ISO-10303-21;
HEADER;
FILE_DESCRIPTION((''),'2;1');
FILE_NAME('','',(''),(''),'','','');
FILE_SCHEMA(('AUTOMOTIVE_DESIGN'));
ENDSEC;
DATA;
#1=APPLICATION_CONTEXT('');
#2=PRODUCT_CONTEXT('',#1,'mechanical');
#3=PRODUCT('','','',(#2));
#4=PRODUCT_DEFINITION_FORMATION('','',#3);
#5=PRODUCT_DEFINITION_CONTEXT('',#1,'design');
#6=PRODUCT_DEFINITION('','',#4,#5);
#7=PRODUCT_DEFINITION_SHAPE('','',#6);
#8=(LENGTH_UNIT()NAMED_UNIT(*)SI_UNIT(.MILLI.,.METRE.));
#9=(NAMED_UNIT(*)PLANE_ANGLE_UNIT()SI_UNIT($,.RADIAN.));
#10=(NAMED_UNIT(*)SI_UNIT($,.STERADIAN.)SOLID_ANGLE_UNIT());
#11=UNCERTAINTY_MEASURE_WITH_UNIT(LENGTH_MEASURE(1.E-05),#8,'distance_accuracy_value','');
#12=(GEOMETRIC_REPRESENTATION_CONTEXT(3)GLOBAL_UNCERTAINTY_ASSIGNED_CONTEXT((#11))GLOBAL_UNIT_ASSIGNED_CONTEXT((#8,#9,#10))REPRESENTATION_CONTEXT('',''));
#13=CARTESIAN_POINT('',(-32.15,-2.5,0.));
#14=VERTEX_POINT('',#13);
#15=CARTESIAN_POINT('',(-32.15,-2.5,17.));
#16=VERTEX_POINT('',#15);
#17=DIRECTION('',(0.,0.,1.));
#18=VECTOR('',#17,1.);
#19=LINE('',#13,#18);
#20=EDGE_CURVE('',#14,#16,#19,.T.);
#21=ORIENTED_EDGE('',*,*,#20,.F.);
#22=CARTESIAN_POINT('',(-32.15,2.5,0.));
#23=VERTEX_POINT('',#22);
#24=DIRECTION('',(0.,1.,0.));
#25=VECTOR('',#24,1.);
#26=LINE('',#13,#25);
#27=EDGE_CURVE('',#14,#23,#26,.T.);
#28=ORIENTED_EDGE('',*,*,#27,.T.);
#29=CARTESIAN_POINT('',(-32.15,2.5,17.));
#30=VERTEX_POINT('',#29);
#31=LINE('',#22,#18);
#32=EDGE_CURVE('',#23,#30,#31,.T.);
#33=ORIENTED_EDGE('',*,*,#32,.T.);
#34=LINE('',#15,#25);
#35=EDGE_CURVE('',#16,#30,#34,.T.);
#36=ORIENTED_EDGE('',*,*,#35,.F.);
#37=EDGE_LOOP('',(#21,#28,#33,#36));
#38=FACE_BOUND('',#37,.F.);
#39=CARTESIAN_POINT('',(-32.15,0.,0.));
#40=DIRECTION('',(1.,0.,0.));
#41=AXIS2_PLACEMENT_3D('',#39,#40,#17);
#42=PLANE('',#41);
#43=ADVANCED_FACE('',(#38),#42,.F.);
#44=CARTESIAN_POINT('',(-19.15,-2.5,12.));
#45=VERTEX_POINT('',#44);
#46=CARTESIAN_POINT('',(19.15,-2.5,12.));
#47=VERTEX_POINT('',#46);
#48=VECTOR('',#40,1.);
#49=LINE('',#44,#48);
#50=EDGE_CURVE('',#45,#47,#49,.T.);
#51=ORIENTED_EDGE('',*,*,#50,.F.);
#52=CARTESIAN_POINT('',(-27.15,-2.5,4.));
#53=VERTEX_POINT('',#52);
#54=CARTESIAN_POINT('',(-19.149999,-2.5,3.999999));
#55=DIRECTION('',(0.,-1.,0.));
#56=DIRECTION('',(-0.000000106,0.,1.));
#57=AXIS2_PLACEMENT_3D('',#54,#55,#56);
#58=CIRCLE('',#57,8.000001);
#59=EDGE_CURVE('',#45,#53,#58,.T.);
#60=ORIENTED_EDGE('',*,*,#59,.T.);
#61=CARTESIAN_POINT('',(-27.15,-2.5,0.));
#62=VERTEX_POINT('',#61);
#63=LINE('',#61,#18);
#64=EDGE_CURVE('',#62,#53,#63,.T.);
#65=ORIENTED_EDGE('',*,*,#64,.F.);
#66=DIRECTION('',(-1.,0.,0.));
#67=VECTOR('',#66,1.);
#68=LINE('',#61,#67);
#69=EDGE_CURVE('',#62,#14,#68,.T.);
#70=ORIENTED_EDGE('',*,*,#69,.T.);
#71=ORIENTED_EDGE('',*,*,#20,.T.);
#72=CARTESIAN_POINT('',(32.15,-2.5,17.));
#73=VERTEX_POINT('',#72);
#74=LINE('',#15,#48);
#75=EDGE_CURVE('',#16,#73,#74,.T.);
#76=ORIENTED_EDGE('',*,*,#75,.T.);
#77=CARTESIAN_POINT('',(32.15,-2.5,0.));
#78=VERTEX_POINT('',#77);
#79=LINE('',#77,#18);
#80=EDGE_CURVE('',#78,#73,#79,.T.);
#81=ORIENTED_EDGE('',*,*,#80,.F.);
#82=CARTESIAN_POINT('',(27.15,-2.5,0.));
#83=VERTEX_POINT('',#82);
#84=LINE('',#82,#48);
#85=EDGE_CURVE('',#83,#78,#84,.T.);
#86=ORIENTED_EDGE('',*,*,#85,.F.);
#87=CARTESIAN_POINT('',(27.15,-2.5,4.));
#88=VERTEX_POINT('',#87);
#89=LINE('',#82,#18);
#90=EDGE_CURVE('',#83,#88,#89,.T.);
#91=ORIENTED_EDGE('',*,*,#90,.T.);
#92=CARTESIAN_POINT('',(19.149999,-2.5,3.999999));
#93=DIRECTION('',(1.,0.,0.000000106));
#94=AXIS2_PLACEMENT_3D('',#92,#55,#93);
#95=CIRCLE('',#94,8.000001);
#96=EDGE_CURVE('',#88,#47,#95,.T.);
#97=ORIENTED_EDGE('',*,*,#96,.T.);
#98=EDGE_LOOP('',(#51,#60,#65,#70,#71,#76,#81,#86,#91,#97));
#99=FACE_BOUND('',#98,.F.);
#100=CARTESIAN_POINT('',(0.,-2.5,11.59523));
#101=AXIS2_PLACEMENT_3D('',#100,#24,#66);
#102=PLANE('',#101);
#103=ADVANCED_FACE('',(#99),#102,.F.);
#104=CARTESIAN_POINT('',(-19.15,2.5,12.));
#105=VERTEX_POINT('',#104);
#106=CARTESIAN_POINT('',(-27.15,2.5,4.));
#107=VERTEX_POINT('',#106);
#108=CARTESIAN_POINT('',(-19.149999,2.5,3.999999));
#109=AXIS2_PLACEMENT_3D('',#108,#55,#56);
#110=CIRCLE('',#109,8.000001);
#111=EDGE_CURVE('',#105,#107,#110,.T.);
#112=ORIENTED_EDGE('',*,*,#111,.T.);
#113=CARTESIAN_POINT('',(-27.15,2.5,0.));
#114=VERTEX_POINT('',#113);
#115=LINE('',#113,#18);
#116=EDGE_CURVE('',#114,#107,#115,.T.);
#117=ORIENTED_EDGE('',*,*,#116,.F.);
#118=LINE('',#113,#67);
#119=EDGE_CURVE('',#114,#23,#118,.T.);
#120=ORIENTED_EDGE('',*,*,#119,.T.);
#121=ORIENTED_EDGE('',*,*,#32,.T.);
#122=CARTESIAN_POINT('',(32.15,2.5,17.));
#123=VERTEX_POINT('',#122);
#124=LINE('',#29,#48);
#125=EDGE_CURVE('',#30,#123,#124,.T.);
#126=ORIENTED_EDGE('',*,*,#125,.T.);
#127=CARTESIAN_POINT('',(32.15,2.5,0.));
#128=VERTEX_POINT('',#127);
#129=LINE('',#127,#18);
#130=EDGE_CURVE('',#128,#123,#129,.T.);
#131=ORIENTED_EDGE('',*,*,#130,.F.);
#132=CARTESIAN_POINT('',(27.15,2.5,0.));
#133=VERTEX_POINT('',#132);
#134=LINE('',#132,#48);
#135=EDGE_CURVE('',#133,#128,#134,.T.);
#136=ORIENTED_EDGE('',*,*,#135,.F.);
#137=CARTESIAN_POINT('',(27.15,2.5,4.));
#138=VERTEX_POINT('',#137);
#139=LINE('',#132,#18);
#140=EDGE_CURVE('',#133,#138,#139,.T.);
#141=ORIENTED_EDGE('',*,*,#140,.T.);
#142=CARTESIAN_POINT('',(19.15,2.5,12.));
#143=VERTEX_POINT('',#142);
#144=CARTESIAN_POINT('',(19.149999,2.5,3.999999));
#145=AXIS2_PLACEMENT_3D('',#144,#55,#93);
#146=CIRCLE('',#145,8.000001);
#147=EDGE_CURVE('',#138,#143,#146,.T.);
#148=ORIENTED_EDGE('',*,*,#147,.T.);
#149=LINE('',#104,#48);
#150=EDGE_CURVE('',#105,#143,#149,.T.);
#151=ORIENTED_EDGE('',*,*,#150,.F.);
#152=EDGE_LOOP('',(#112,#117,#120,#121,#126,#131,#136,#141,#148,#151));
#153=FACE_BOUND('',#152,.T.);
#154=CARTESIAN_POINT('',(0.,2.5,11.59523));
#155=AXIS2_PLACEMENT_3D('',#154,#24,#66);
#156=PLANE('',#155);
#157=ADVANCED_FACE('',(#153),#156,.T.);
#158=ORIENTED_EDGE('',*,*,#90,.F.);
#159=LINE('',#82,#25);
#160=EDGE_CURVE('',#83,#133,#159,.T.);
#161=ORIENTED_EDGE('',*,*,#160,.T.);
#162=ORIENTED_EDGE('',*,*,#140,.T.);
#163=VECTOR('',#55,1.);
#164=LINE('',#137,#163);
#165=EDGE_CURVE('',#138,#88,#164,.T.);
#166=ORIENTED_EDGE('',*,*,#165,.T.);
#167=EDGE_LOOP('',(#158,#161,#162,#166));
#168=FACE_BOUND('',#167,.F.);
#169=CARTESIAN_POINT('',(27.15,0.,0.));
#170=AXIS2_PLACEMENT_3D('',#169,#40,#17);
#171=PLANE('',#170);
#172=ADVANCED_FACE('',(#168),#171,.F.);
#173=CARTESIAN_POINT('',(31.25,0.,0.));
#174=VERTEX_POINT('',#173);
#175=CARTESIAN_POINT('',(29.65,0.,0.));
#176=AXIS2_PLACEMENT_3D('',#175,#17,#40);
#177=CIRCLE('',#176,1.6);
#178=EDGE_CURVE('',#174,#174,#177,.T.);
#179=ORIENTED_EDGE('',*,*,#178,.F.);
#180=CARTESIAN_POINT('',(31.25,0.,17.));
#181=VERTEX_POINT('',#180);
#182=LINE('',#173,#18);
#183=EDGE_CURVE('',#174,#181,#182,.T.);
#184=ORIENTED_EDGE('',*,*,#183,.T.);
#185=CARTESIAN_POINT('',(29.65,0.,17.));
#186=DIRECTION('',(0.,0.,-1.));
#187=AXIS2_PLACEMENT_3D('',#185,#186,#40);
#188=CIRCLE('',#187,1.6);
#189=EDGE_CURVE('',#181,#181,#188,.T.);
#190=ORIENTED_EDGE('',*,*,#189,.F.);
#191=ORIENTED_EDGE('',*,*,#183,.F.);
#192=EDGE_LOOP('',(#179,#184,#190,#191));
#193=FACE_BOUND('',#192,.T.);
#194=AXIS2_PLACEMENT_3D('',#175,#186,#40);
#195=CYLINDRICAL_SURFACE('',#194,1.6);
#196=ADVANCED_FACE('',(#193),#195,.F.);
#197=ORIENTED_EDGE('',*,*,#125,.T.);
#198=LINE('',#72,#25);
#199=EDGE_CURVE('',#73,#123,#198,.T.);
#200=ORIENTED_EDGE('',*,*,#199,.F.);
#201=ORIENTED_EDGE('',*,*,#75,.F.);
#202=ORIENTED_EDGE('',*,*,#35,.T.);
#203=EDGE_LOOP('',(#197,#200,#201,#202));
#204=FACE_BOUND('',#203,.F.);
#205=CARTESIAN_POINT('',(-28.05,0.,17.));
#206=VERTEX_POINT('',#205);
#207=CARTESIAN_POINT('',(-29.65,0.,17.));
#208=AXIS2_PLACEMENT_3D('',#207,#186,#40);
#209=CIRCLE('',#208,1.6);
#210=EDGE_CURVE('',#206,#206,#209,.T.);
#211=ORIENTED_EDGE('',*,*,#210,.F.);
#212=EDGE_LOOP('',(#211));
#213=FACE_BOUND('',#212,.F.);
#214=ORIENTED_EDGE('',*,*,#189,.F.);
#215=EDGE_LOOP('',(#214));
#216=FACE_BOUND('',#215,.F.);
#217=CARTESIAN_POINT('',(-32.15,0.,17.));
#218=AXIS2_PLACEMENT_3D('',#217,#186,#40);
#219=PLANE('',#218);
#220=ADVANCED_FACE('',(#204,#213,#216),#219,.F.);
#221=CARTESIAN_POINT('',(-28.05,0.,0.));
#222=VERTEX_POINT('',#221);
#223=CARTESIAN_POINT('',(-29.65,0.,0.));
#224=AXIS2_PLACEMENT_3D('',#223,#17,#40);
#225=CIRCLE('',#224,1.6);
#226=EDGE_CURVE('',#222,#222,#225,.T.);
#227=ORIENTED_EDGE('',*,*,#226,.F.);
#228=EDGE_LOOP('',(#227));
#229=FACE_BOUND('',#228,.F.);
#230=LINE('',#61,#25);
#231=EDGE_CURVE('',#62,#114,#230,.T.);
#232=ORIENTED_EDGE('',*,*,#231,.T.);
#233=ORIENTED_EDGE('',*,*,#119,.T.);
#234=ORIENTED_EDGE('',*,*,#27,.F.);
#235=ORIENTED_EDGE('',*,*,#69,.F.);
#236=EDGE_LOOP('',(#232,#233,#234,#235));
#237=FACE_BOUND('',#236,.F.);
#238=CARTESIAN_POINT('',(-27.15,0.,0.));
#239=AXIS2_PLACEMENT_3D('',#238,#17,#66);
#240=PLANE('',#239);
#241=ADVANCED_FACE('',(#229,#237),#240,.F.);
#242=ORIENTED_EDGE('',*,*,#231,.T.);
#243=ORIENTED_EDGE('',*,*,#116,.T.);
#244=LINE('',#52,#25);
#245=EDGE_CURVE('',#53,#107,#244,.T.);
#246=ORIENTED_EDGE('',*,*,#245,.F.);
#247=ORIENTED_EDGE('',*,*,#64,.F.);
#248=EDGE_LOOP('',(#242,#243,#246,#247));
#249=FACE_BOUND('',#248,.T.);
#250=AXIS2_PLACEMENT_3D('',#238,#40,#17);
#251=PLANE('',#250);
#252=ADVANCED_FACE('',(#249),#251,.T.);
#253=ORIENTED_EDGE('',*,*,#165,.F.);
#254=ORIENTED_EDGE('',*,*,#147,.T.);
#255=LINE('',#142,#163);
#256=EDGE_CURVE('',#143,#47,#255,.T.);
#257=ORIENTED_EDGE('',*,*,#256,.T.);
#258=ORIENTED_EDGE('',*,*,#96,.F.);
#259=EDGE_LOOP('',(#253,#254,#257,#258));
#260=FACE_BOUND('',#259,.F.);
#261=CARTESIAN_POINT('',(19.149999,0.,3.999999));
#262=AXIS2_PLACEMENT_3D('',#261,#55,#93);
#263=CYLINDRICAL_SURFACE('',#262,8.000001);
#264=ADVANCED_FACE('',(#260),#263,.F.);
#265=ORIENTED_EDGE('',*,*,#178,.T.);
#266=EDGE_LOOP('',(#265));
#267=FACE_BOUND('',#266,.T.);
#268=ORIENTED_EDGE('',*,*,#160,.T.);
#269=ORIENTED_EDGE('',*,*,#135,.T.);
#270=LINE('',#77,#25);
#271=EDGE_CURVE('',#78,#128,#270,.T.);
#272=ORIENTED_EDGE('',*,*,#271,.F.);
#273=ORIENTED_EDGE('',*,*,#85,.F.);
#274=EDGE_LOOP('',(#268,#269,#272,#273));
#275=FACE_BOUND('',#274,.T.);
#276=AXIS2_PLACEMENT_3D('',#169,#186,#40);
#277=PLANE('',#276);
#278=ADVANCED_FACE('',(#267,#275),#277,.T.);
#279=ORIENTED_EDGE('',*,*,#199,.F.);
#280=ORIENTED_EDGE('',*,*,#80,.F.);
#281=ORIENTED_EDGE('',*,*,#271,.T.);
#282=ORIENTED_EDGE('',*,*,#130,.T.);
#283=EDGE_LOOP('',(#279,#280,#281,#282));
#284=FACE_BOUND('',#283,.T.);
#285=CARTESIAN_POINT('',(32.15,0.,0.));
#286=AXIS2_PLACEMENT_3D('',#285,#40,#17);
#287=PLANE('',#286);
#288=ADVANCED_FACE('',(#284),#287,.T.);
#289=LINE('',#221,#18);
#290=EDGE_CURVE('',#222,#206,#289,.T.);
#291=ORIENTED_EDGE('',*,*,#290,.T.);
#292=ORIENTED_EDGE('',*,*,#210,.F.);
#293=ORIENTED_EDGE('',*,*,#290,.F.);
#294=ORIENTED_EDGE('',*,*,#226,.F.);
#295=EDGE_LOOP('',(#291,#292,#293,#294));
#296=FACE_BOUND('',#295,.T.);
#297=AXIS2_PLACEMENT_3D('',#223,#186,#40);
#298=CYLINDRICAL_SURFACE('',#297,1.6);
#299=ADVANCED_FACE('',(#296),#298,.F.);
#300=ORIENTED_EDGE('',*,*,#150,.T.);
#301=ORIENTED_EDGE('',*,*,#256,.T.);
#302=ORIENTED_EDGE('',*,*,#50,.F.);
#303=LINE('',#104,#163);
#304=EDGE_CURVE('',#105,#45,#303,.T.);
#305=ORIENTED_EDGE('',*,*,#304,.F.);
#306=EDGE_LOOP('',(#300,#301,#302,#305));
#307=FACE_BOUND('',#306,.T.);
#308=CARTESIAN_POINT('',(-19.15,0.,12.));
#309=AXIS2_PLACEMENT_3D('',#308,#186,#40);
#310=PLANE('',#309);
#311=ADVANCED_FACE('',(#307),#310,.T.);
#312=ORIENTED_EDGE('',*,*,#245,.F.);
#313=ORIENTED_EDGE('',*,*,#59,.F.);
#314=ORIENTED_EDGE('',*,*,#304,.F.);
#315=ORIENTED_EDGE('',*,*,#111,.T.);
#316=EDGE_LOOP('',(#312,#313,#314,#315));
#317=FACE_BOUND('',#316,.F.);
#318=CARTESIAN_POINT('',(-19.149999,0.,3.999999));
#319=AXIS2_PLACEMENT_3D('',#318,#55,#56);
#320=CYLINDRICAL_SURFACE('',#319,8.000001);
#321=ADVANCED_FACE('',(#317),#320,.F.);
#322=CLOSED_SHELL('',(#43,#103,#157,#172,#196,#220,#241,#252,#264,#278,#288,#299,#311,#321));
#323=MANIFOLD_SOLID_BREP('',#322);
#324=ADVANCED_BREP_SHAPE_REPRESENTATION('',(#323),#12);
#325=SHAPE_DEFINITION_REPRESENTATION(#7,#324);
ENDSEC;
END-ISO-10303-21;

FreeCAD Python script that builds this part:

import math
import FreeCAD as App
import Part
import Sketcher

doc = App.newDocument("Part")
body = doc.addObject("PartDesign::Body", "Body")

# Sketch on XZ plane
sketch1 = body.newObject("Sketcher::SketchObject", "Sketch")
sketch1.AttachmentSupport = (doc.getObject("XZ_Plane"), [""])
sketch1.MapMode = "FlatFace"
sketch1.addGeometry([
    Part.ArcOfCircle(Part.Circle(App.Vector(-19.1, 4, 0), App.Vector(0, 0, 1), 8), math.radians(90), math.radians(180)),  # 0
    Part.LineSegment(App.Vector(-19.1, 12, 0), App.Vector(19.1, 12, 0)),  # 1
    Part.ArcOfCircle(Part.Circle(App.Vector(19.1, 4, 0), App.Vector(0, 0, 1), 8), math.radians(0), math.radians(90)),  # 2
    Part.LineSegment(App.Vector(27.1, 4, 0), App.Vector(27.1, 0, 0)),  # 3
    Part.LineSegment(App.Vector(27.1, 0, 0), App.Vector(32.1, 0, 0)),  # 4
    Part.LineSegment(App.Vector(32.1, 0, 0), App.Vector(32.1, 17, 0)),  # 5
    Part.LineSegment(App.Vector(32.1, 17, 0), App.Vector(-32.1, 17, 0)),  # 6
    Part.LineSegment(App.Vector(-32.1, 17, 0), App.Vector(-32.1, 0, 0)),  # 7
    Part.LineSegment(App.Vector(-32.1, 0, 0), App.Vector(-27.1, 0, 0)),  # 8
    Part.LineSegment(App.Vector(-27.1, 0, 0), App.Vector(-27.1, 4, 0)),  # 9
], False)
sketch1.addConstraint([
    Sketcher.Constraint("Tangent", 0, 1, 1, 1),
    Sketcher.Constraint("Tangent", 1, 2, 2, 2),
    Sketcher.Constraint("Tangent", 2, 1, 3, 1),
    Sketcher.Constraint("Coincident", 3, 2, 4, 1),
    Sketcher.Constraint("Coincident", 4, 2, 5, 1),
    Sketcher.Constraint("Coincident", 5, 2, 6, 1),
    Sketcher.Constraint("Coincident", 6, 2, 7, 1),
    Sketcher.Constraint("Coincident", 7, 2, 8, 1),
    Sketcher.Constraint("Coincident", 8, 2, 9, 1),
    Sketcher.Constraint("Tangent", 9, 2, 0, 2),
    Sketcher.Constraint("Horizontal", 1),
    Sketcher.Constraint("Vertical", 3),
    Sketcher.Constraint("Horizontal", 4),
    Sketcher.Constraint("Vertical", 5),
    Sketcher.Constraint("Horizontal", 6),
    Sketcher.Constraint("Vertical", 7),
    Sketcher.Constraint("Horizontal", 8),
    Sketcher.Constraint("Vertical", 9),
    Sketcher.Constraint("Equal", 0, 2),
    Sketcher.Constraint("Symmetric", 4, 2, 7, 2, -1, 1),
    Sketcher.Constraint("Symmetric", 3, 2, 8, 2, -2),
    Sketcher.Constraint("Radius", 0, 8.000001),
    Sketcher.Constraint("DistanceX", 4, 1, 4, 2, 5.0),
    Sketcher.Constraint("DistanceY", 3, 2, 3, 1, 4.0),
    Sketcher.Constraint("DistanceY", 5, 1, 5, 2, 17.0),
    Sketcher.Constraint("DistanceX", 1, 1, 1, 2, 38.3),
])
pad1 = body.newObject("PartDesign::Pad", "Pad")
pad1.Profile = sketch1
pad1.Length = 5
pad1.Midplane = True

# Sketch on XY plane
sketch2 = body.newObject("Sketcher::SketchObject", "Sketch001")
sketch2.AttachmentSupport = (doc.getObject("XY_Plane"), [""])
sketch2.MapMode = "FlatFace"
sketch2.addGeometry([
    Part.Circle(App.Vector(-29.6, 0, 0), App.Vector(0, 0, 1), 1.6),
    Part.Circle(App.Vector(29.6, 0, 0), App.Vector(0, 0, 1), 1.6),
], False)
sketch2.addConstraint([
    Sketcher.Constraint("Equal", 0, 1),
    Sketcher.Constraint("Symmetric", 0, 3, 1, 3, -1, 1),
    Sketcher.Constraint("PointOnObject", 0, 3, -1),
    Sketcher.Constraint("Diameter", 0, 3.2),
    Sketcher.Constraint("DistanceX", 0, 3, 1, 3, 59.3),
])
pocket1 = body.newObject("PartDesign::Pocket", "Pocket")
pocket1.Profile = sketch2
pocket1.Type = "ThroughAll"
pocket1.Reversed = True

doc.recompute()
